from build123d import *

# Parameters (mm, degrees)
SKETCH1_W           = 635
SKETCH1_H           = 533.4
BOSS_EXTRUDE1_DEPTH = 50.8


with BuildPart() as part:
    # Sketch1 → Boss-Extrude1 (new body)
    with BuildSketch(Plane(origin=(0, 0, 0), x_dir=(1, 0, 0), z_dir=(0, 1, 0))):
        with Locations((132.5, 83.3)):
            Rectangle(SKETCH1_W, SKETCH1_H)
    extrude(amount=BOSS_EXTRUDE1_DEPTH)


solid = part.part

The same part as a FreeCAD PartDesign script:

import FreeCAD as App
import Part
import Sketcher
from FreeCAD import Vector
Q = App.Units.Quantity


def add_polygon(sketch, points):
    """Adds a closed chain of lines whose ends are joined by coincident constraints."""
    first, n = sketch.GeometryCount, len(points)
    for a, b in zip(points, points[1:] + points[:1]):
        sketch.addGeometry(Part.LineSegment(App.Vector(*a, 0), App.Vector(*b, 0)), False)
    for i in range(n):
        sketch.addConstraint(Sketcher.Constraint("Coincident", first + i, 2, first + (i + 1) % n, 1))

doc = App.newDocument("Part")
body = doc.addObject("PartDesign::Body", "Body")

# Sketch on XZ plane
sketch1 = body.newObject("Sketcher::SketchObject", "Sketch")
sketch1.AttachmentSupport = (doc.getObject("XZ_Plane"), [""])
sketch1.MapMode = "FlatFace"
add_polygon(sketch1, [(-185, -350), (-185, 183.4), (450, 183.4), (450, -350)])  # lines 0-3
sketch1.addConstraint([
    Sketcher.Constraint("Vertical", 0),
    Sketcher.Constraint("Horizontal", 1),
    Sketcher.Constraint("Vertical", 2),
    Sketcher.Constraint("Horizontal", 3),
    Sketcher.Constraint("DistanceX", 1, 1, 1, 2, Q("25 in")),
    Sketcher.Constraint("DistanceY", 0, 1, 0, 2, Q("21 in")),
    Sketcher.Constraint("DistanceX", 0, 2, -1, 1, 185.0),
    Sketcher.Constraint("DistanceY", -1, 1, 0, 2, 183.4),
])
pad1 = body.newObject("PartDesign::Pad", "Pad")
pad1.Profile = sketch1
pad1.Length = Q("2 in")
pad1.Reversed = True

doc.recompute()
